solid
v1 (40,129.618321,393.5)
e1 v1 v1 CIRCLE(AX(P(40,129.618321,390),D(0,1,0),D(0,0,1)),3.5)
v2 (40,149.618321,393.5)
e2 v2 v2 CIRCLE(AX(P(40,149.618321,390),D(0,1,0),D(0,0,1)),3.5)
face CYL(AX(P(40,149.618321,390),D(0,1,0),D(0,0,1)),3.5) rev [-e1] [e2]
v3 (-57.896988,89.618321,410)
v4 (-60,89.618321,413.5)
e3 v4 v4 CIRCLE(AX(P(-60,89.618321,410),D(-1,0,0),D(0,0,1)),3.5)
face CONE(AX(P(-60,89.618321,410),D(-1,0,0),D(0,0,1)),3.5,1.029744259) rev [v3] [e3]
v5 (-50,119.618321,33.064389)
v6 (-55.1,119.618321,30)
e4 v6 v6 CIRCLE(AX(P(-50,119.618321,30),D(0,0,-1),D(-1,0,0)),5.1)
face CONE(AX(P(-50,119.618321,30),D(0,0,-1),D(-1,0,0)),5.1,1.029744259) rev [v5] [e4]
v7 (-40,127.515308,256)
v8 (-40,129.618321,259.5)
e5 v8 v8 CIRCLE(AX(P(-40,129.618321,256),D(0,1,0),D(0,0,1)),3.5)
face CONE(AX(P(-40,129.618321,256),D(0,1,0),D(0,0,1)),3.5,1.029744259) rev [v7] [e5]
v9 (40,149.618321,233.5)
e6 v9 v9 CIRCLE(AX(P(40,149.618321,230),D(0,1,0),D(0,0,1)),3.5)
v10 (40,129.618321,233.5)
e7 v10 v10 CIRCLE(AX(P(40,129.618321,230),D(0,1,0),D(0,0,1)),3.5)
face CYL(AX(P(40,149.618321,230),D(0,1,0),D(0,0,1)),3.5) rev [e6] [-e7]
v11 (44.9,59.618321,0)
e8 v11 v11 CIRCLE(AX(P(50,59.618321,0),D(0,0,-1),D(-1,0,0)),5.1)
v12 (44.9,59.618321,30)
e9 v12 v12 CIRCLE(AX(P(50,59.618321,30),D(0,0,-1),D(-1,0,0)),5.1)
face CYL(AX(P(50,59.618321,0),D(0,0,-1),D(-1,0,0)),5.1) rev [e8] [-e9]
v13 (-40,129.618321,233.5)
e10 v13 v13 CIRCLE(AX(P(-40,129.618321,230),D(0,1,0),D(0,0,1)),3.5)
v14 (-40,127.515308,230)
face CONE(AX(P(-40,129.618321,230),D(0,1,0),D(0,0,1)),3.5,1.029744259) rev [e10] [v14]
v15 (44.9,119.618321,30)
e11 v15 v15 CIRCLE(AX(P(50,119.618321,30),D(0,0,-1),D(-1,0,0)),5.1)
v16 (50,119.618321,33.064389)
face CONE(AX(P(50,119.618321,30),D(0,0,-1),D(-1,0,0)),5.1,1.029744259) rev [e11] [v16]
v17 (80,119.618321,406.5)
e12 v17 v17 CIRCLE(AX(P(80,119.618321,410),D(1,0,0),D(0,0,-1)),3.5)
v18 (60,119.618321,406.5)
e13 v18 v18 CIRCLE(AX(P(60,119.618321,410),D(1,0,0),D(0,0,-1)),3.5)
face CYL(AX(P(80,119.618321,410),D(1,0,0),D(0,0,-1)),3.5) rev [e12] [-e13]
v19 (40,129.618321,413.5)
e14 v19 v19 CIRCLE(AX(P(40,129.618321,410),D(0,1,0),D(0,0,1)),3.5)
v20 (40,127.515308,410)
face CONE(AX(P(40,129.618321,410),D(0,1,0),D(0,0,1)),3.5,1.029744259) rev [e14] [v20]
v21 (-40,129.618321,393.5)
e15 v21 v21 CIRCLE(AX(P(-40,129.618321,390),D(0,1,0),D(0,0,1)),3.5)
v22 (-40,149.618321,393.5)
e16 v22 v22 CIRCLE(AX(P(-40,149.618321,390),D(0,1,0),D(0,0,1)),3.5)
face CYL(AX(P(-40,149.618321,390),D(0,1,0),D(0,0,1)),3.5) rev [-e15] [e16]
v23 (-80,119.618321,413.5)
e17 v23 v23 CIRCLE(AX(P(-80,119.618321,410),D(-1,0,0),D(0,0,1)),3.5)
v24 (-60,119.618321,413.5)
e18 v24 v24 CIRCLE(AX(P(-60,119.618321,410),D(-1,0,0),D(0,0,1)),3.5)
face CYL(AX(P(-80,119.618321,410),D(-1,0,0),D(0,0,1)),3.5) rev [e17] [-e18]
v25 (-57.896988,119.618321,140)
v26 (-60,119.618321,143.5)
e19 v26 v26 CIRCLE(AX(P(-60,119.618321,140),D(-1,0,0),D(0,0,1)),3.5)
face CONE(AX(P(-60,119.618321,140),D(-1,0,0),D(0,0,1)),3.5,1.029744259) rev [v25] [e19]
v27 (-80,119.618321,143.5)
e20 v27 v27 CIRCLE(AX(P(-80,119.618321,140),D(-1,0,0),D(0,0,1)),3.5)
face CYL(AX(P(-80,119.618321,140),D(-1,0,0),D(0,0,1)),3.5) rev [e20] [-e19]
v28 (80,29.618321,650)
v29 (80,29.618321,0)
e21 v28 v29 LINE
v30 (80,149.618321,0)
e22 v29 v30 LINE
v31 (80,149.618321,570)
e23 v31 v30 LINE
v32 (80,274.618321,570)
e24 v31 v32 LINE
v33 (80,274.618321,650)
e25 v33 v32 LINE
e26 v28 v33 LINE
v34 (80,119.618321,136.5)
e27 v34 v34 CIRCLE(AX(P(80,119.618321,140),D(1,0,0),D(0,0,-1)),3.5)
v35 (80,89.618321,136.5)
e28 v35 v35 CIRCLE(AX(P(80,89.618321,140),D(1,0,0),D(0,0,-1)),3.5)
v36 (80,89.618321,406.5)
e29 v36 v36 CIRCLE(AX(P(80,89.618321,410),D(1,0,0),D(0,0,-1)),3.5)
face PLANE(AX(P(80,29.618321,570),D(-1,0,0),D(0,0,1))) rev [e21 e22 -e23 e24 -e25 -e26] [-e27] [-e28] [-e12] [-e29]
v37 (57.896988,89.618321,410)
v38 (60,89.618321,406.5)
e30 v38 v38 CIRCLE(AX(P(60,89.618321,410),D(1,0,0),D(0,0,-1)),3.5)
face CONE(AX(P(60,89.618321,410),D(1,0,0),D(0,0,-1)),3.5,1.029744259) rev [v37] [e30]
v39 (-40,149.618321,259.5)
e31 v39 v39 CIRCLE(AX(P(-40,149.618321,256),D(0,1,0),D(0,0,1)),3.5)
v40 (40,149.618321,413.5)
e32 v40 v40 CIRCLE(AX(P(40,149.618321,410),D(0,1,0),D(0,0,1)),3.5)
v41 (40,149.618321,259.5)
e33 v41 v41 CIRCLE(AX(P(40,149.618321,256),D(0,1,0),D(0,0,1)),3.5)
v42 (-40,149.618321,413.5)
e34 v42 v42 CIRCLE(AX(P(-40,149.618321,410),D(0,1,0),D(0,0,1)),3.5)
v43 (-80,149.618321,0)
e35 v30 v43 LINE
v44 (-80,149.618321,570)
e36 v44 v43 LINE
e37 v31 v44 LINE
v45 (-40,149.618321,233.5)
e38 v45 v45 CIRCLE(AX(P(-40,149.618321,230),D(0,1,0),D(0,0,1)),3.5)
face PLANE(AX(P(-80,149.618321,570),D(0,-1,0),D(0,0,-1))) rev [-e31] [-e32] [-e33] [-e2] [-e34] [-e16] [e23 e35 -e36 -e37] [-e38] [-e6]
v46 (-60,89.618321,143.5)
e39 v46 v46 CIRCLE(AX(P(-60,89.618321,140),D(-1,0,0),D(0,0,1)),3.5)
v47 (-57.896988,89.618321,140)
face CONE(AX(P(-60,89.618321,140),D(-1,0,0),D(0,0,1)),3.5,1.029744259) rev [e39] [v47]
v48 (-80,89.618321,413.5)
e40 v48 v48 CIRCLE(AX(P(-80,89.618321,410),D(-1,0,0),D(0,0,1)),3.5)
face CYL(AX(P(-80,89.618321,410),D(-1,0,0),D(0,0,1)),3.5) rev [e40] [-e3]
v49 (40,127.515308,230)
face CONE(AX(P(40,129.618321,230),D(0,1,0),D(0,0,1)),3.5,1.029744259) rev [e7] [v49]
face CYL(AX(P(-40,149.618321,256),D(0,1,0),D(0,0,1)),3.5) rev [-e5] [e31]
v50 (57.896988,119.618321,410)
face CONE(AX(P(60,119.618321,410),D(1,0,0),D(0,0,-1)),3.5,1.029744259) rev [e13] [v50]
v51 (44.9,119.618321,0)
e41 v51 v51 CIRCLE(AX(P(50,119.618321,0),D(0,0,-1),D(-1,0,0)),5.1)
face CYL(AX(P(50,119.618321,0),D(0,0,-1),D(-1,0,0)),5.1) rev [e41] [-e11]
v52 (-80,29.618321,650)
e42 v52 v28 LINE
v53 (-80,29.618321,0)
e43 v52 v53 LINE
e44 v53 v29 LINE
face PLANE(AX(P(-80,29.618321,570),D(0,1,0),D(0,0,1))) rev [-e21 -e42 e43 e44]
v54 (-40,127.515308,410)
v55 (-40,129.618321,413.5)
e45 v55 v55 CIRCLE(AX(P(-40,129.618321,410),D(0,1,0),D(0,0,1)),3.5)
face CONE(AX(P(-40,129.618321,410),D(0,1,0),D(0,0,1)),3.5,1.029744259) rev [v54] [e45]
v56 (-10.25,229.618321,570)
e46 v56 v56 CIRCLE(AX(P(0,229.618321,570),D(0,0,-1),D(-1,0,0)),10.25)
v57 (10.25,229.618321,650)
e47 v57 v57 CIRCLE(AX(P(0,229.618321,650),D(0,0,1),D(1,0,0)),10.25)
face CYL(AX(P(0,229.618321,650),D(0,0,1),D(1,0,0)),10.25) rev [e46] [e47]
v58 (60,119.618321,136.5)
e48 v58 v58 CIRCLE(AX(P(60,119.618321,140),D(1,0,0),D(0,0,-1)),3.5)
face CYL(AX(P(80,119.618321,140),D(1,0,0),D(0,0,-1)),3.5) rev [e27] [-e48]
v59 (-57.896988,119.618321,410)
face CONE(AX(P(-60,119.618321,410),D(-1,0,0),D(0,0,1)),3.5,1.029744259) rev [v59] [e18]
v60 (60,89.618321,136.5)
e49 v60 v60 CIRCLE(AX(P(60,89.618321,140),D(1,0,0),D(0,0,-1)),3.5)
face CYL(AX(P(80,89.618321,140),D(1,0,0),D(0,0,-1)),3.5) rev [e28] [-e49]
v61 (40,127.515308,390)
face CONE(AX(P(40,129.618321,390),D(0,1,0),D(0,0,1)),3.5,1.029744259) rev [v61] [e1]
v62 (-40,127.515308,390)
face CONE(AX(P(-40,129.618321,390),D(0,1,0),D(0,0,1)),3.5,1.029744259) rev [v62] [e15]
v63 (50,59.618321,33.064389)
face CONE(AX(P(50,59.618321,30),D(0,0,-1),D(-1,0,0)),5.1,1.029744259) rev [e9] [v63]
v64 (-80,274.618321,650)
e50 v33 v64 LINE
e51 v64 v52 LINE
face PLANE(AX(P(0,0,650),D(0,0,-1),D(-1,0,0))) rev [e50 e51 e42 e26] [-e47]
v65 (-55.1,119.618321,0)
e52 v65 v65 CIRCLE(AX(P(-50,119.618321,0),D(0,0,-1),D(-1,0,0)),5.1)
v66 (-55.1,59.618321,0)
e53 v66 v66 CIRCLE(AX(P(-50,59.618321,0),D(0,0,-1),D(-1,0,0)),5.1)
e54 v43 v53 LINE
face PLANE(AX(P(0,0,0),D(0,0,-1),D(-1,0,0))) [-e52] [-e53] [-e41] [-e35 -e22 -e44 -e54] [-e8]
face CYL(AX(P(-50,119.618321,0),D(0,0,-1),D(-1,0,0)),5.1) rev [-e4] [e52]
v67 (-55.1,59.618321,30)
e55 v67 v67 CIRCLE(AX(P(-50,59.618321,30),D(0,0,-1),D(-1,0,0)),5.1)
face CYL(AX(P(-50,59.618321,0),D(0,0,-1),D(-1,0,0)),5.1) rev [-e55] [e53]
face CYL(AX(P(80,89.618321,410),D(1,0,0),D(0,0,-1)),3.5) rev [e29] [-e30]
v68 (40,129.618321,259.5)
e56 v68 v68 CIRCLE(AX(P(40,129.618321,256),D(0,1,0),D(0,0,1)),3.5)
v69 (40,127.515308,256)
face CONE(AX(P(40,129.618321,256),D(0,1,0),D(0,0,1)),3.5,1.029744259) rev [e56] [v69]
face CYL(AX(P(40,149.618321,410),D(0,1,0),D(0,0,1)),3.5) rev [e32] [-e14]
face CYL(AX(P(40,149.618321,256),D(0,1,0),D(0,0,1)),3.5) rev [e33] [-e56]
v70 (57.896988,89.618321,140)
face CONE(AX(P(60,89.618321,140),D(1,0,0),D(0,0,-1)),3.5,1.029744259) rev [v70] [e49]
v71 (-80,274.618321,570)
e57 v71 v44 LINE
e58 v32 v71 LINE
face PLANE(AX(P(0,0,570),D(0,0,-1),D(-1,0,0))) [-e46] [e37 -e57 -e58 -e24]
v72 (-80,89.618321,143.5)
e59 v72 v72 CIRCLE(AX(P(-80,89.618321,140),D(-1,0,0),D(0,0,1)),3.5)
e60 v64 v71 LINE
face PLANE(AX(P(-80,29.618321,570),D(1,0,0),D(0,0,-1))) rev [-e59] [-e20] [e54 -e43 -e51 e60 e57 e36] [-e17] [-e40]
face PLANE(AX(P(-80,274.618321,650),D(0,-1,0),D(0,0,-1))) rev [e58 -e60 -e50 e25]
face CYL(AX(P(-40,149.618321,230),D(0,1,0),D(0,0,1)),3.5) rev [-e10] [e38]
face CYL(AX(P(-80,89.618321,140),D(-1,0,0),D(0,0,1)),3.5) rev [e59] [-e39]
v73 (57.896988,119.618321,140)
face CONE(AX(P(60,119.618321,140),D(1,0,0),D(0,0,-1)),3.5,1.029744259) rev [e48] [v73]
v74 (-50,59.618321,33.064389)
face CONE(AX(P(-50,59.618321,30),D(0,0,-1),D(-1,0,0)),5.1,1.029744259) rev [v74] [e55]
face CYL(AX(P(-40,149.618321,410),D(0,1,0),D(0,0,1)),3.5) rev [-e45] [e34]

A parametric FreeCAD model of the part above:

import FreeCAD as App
import Part
import Sketcher

doc = App.newDocument("Part")
body = doc.addObject("PartDesign::Body", "Body")

# Sketch on XY plane
sketch1 = body.newObject("Sketcher::SketchObject", "Sketch")
sketch1.AttachmentSupport = (doc.getObject("XY_Plane"), [""])
sketch1.MapMode = "FlatFace"
sketch1.addGeometry(Part.LineSegment(App.Vector(-80, 149.618321, 0), App.Vector(-80, 29.618321, 0)), False)
sketch1.addGeometry(Part.LineSegment(App.Vector(-80, 29.618321, 0), App.Vector(80, 29.618321, 0)), False)
sketch1.addGeometry(Part.LineSegment(App.Vector(80, 29.618321, 0), App.Vector(80, 149.618321, 0)), False)
sketch1.addGeometry(Part.LineSegment(App.Vector(80, 149.618321, 0), App.Vector(-80, 149.618321, 0)), False)
sketch1.addConstraint(Sketcher.Constraint("Coincident", 0, 2, 1, 1))
sketch1.addConstraint(Sketcher.Constraint("Coincident", 1, 2, 2, 1))
sketch1.addConstraint(Sketcher.Constraint("Coincident", 2, 2, 3, 1))
sketch1.addConstraint(Sketcher.Constraint("Coincident", 3, 2, 0, 1))
sketch1.addConstraint(Sketcher.Constraint("Vertical", 0))
sketch1.addConstraint(Sketcher.Constraint("Horizontal", 1))
sketch1.addConstraint(Sketcher.Constraint("Vertical", 2))
sketch1.addConstraint(Sketcher.Constraint("Horizontal", 3))
sketch1.addConstraint(Sketcher.Constraint("DistanceX", 1, 1, 1, 2, 160.0))
sketch1.addConstraint(Sketcher.Constraint("DistanceY", 0, 2, 0, 1, 120.0))
sketch1.addConstraint(Sketcher.Constraint("DistanceX", 0, 2, -1, 1, 80.0))
sketch1.addConstraint(Sketcher.Constraint("DistanceY", -1, 1, 0, 2, 29.618321))
pad1 = body.newObject("PartDesign::Pad", "Pad")
pad1.Profile = sketch1
pad1.Length = 570

# Sketch on XY plane
sketch2 = body.newObject("Sketcher::SketchObject", "Sketch001")
sketch2.AttachmentSupport = (doc.getObject("XY_Plane"), [""])
sketch2.MapMode = "FlatFace"
sketch2.AttachmentOffset = App.Placement(App.Vector(0, 0, 570), App.Rotation())
sketch2.addGeometry(Part.LineSegment(App.Vector(-80, 274.618321, 0), App.Vector(-80, 29.618321, 0)), False)
sketch2.addGeometry(Part.LineSegment(App.Vector(-80, 29.618321, 0), App.Vector(80, 29.618321, 0)), False)
sketch2.addGeometry(Part.LineSegment(App.Vector(80, 29.618321, 0), App.Vector(80, 274.618321, 0)), False)
sketch2.addGeometry(Part.LineSegment(App.Vector(80, 274.618321, 0), App.Vector(-80, 274.618321, 0)), False)
sketch2.addConstraint(Sketcher.Constraint("Coincident", 0, 2, 1, 1))
sketch2.addConstraint(Sketcher.Constraint("Coincident", 1, 2, 2, 1))
sketch2.addConstraint(Sketcher.Constraint("Coincident", 2, 2, 3, 1))
sketch2.addConstraint(Sketcher.Constraint("Coincident", 3, 2, 0, 1))
sketch2.addConstraint(Sketcher.Constraint("Vertical", 0))
sketch2.addConstraint(Sketcher.Constraint("Horizontal", 1))
sketch2.addConstraint(Sketcher.Constraint("Vertical", 2))
sketch2.addConstraint(Sketcher.Constraint("Horizontal", 3))
sketch2.addConstraint(Sketcher.Constraint("DistanceX", 1, 1, 1, 2, 160.0))
sketch2.addConstraint(Sketcher.Constraint("DistanceY", 0, 2, 0, 1, 245.0))
sketch2.addConstraint(Sketcher.Constraint("DistanceX", 0, 2, -1, 1, 80.0))
sketch2.addConstraint(Sketcher.Constraint("DistanceY", -1, 1, 0, 2, 29.618321))
pad2 = body.newObject("PartDesign::Pad", "Pad001")
pad2.Profile = sketch2
pad2.Length = 80

# Sketch on XY plane
sketch3 = body.newObject("Sketcher::SketchObject", "Sketch002")
sketch3.AttachmentSupport = (doc.getObject("XY_Plane"), [""])
sketch3.MapMode = "FlatFace"
sketch3.AttachmentOffset = App.Placement(App.Vector(0, 0, 650), App.Rotation())
sketch3.addGeometry(Part.Circle(App.Vector(0, 229.618321, 0), App.Vector(0, 0, 1), 10.25), False)
sketch3.addConstraint(Sketcher.Constraint("PointOnObject", 0, 3, -2))
sketch3.addConstraint(Sketcher.Constraint("Diameter", 0, 20.5))
sketch3.addConstraint(Sketcher.Constraint("DistanceY", -1, 1, 0, 3, 229.618321))
doc.recompute()
hole = body.newObject("PartDesign::Hole", "Hole")
hole.Profile = sketch3
hole.ThreadType = "None"
hole.Diameter = 20.5
hole.DepthType = "ThroughAll"

# Sketch on XZ plane
sketch4 = body.newObject("Sketcher::SketchObject", "Sketch003")
sketch4.AttachmentSupport = (doc.getObject("XZ_Plane"), [""])
sketch4.MapMode = "FlatFace"
sketch4.AttachmentOffset = App.Placement(App.Vector(0, 0, -149.618321), App.Rotation())
sketch4.addGeometry(Part.Circle(App.Vector(-40, 230, 0), App.Vector(0, 0, 1), 3.5), False)
sketch4.addGeometry(Part.Circle(App.Vector(40, 410, 0), App.Vector(0, 0, 1), 3.5), False)
sketch4.addGeometry(Part.Circle(App.Vector(40, 390, 0), App.Vector(0, 0, 1), 3.5), False)
sketch4.addGeometry(Part.Circle(App.Vector(40, 256, 0), App.Vector(0, 0, 1), 3.5), False)
sketch4.addGeometry(Part.Circle(App.Vector(40, 230, 0), App.Vector(0, 0, 1), 3.5), False)
sketch4.addGeometry(Part.Circle(App.Vector(-40, 410, 0), App.Vector(0, 0, 1), 3.5), False)
sketch4.addGeometry(Part.Circle(App.Vector(-40, 390, 0), App.Vector(0, 0, 1), 3.5), False)
sketch4.addGeometry(Part.Circle(App.Vector(-40, 256, 0), App.Vector(0, 0, 1), 3.5), False)
sketch4.addConstraint(Sketcher.Constraint("Equal", 0, 1))
sketch4.addConstraint(Sketcher.Constraint("Equal", 1, 2))
sketch4.addConstraint(Sketcher.Constraint("Equal", 2, 3))
sketch4.addConstraint(Sketcher.Constraint("Equal", 3, 4))
sketch4.addConstraint(Sketcher.Constraint("Equal", 4, 5))
sketch4.addConstraint(Sketcher.Constraint("Equal", 5, 6))
sketch4.addConstraint(Sketcher.Constraint("Equal", 6, 7))
sketch4.addConstraint(Sketcher.Constraint("Symmetric", 0, 3, 4, 3, -2))
sketch4.addConstraint(Sketcher.Constraint("Symmetric", 1, 3, 5, 3, -2))
sketch4.addConstraint(Sketcher.Constraint("Symmetric", 2, 3, 6, 3, -2))
sketch4.addConstraint(Sketcher.Constraint("Symmetric", 3, 3, 7, 3, -2))
sketch4.addConstraint(Sketcher.Constraint("Vertical", 1, 3, 2, 3))
sketch4.addConstraint(Sketcher.Constraint("Vertical", 2, 3, 3, 3))
sketch4.addConstraint(Sketcher.Constraint("Vertical", 3, 3, 4, 3))
sketch4.addConstraint(Sketcher.Constraint("Diameter", 0, 7.0))
sketch4.addConstraint(Sketcher.Constraint("DistanceX", 0, 3, -1, 1, 40.0))
sketch4.addConstraint(Sketcher.Constraint("DistanceY", -1, 1, 0, 3, 230.0))
sketch4.addConstraint(Sketcher.Constraint("DistanceY", -1, 1, 1, 3, 410.0))
sketch4.addConstraint(Sketcher.Constraint("DistanceY", -1, 1, 2, 3, 390.0))
sketch4.addConstraint(Sketcher.Constraint("DistanceY", -1, 1, 3, 3, 256.0))
doc.recompute()
hole2 = body.newObject("PartDesign::Hole", "Hole001")
hole2.Profile = sketch4
hole2.ThreadType = "None"
hole2.Diameter = 7
hole2.DepthType = "Dimension"
hole2.Depth = 20
hole2.DrillPoint = "Angled"
hole2.DrillPointAngle = 118
hole2.Reversed = True

# Sketch on YZ plane
sketch5 = body.newObject("Sketcher::SketchObject", "Sketch004")
sketch5.AttachmentSupport = (doc.getObject("YZ_Plane"), [""])
sketch5.MapMode = "FlatFace"
sketch5.AttachmentOffset = App.Placement(App.Vector(0, 0, 80), App.Rotation())
sketch5.addGeometry(Part.Circle(App.Vector(119.618321, 140, 0), App.Vector(0, 0, 1), 3.5), False)
sketch5.addGeometry(Part.Circle(App.Vector(89.618321, 140, 0), App.Vector(0, 0, 1), 3.5), False)
sketch5.addGeometry(Part.Circle(App.Vector(119.618321, 410, 0), App.Vector(0, 0, 1), 3.5), False)
sketch5.addGeometry(Part.Circle(App.Vector(89.618321, 410, 0), App.Vector(0, 0, 1), 3.5), False)
sketch5.addConstraint(Sketcher.Constraint("Equal", 0, 1))
sketch5.addConstraint(Sketcher.Constraint("Equal", 1, 2))
sketch5.addConstraint(Sketcher.Constraint("Equal", 2, 3))
sketch5.addConstraint(Sketcher.Constraint("Horizontal", 0, 3, 1, 3))
sketch5.addConstraint(Sketcher.Constraint("Horizontal", 2, 3, 3, 3))
sketch5.addConstraint(Sketcher.Constraint("Vertical", 0, 3, 2, 3))
sketch5.addConstraint(Sketcher.Constraint("Vertical", 1, 3, 3, 3))
sketch5.addConstraint(Sketcher.Constraint("Diameter", 0, 7.0))
sketch5.addConstraint(Sketcher.Constraint("DistanceY", -1, 1, 0, 3, 140.0))
sketch5.addConstraint(Sketcher.Constraint("DistanceY", -1, 1, 2, 3, 410.0))
sketch5.addConstraint(Sketcher.Constraint("DistanceX", 1, 3, 0, 3, 30.0))
sketch5.addConstraint(Sketcher.Constraint("DistanceX", -1, 1, 0, 3, 119.618321))
doc.recompute()
hole3 = body.newObject("PartDesign::Hole", "Hole002")
hole3.Profile = sketch5
hole3.ThreadType = "None"
hole3.Diameter = 7
hole3.DepthType = "Dimension"
hole3.Depth = 20
hole3.DrillPoint = "Angled"
hole3.DrillPointAngle = 118

# Sketch on YZ plane
sketch6 = body.newObject("Sketcher::SketchObject", "Sketch005")
sketch6.AttachmentSupport = (doc.getObject("YZ_Plane"), [""])
sketch6.MapMode = "FlatFace"
sketch6.AttachmentOffset = App.Placement(App.Vector(0, 0, -80), App.Rotation())
sketch6.addGeometry(Part.Circle(App.Vector(119.618321, 410, 0), App.Vector(0, 0, 1), 3.5), False)
sketch6.addGeometry(Part.Circle(App.Vector(89.618321, 140, 0), App.Vector(0, 0, 1), 3.5), False)
sketch6.addGeometry(Part.Circle(App.Vector(89.618321, 410, 0), App.Vector(0, 0, 1), 3.5), False)
sketch6.addGeometry(Part.Circle(App.Vector(119.618321, 140, 0), App.Vector(0, 0, 1), 3.5), False)
sketch6.addConstraint(Sketcher.Constraint("Equal", 0, 1))
sketch6.addConstraint(Sketcher.Constraint("Equal", 1, 2))
sketch6.addConstraint(Sketcher.Constraint("Equal", 2, 3))
sketch6.addConstraint(Sketcher.Constraint("Horizontal", 0, 3, 2, 3))
sketch6.addConstraint(Sketcher.Constraint("Horizontal", 1, 3, 3, 3))
sketch6.addConstraint(Sketcher.Constraint("Vertical", 1, 3, 2, 3))
sketch6.addConstraint(Sketcher.Constraint("Vertical", 0, 3, 3, 3))
sketch6.addConstraint(Sketcher.Constraint("Diameter", 0, 7.0))
sketch6.addConstraint(Sketcher.Constraint("DistanceY", -1, 1, 0, 3, 410.0))
sketch6.addConstraint(Sketcher.Constraint("DistanceY", -1, 1, 1, 3, 140.0))
sketch6.addConstraint(Sketcher.Constraint("DistanceX", 1, 3, 0, 3, 30.0))
sketch6.addConstraint(Sketcher.Constraint("DistanceX", -1, 1, 0, 3, 119.618321))
doc.recompute()
hole4 = body.newObject("PartDesign::Hole", "Hole003")
hole4.Profile = sketch6
hole4.ThreadType = "None"
hole4.Diameter = 7
hole4.DepthType = "Dimension"
hole4.Depth = 20
hole4.DrillPoint = "Angled"
hole4.DrillPointAngle = 118
hole4.Reversed = True

# Sketch on XY plane
sketch7 = body.newObject("Sketcher::SketchObject", "Sketch006")
sketch7.AttachmentSupport = (doc.getObject("XY_Plane"), [""])
sketch7.MapMode = "FlatFace"
sketch7.addGeometry(Part.Circle(App.Vector(50, 119.618321, 0), App.Vector(0, 0, 1), 5.1), False)
sketch7.addGeometry(Part.Circle(App.Vector(-50, 119.618321, 0), App.Vector(0, 0, 1), 5.1), False)
sketch7.addGeometry(Part.Circle(App.Vector(-50, 59.618321, 0), App.Vector(0, 0, 1), 5.1), False)
sketch7.addGeometry(Part.Circle(App.Vector(50, 59.618321, 0), App.Vector(0, 0, 1), 5.1), False)
sketch7.addConstraint(Sketcher.Constraint("Equal", 0, 1))
sketch7.addConstraint(Sketcher.Constraint("Equal", 1, 2))
sketch7.addConstraint(Sketcher.Constraint("Equal", 2, 3))
sketch7.addConstraint(Sketcher.Constraint("Symmetric", 0, 3, 1, 3, -2))
sketch7.addConstraint(Sketcher.Constraint("Symmetric", 2, 3, 3, 3, -2))
sketch7.addConstraint(Sketcher.Constraint("Vertical", 1, 3, 2, 3))
sketch7.addConstraint(Sketcher.Constraint("Diameter", 0, 10.2))
sketch7.addConstraint(Sketcher.Constraint("DistanceX", -1, 1, 0, 3, 50.0))
sketch7.addConstraint(Sketcher.Constraint("DistanceY", 2, 3, 1, 3, 60.0))
sketch7.addConstraint(Sketcher.Constraint("DistanceY", -1, 1, 0, 3, 119.618321))
doc.recompute()
hole5 = body.newObject("PartDesign::Hole", "Hole004")
hole5.Profile = sketch7
hole5.ThreadType = "None"
hole5.Diameter = 10.2
hole5.DepthType = "Dimension"
hole5.Depth = 30
hole5.DrillPoint = "Angled"
hole5.DrillPointAngle = 118
hole5.Reversed = True

doc.recompute()
